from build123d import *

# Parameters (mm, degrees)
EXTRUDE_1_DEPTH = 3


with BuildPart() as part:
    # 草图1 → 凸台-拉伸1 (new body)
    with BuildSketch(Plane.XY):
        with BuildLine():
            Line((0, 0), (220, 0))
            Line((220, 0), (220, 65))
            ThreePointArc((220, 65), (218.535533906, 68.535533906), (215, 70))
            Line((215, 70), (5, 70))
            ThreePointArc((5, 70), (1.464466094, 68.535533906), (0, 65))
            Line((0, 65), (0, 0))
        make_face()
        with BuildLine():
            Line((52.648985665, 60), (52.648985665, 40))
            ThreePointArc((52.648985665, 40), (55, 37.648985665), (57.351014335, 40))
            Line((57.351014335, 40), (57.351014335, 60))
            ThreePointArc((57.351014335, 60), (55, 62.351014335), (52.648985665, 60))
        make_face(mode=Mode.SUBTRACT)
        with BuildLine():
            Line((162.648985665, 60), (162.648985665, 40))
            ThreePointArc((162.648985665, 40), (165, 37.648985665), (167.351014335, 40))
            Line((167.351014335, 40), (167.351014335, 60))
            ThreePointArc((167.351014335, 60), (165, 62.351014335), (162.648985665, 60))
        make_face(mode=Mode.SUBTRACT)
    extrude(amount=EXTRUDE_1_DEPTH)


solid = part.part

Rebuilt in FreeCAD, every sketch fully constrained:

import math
import FreeCAD as App
import Part
import Sketcher

doc = App.newDocument("Part")
body = doc.addObject("PartDesign::Body", "Body")

# Sketch on XY plane
sketch1 = doc.addObject("Sketcher::SketchObject", "Sketch")
body.addObject(sketch1)
sketch1.AttachmentSupport = (doc.XY_Plane, [""])
sketch1.MapMode = "FlatFace"
sketch1.addGeometry(Part.LineSegment(App.Vector(0, 0, 0), App.Vector(220, 0, 0)), False)
sketch1.addGeometry(Part.LineSegment(App.Vector(220, 0, 0), App.Vector(220, 65, 0)), False)
sketch1.addGeometry(Part.ArcOfCircle(Part.Circle(App.Vector(215, 65, 0), App.Vector(0, 0, 1), 5), math.radians(0), math.radians(90)), False)
sketch1.addGeometry(Part.LineSegment(App.Vector(215, 70, 0), App.Vector(5, 70, 0)), False)
sketch1.addGeometry(Part.ArcOfCircle(Part.Circle(App.Vector(5, 65, 0), App.Vector(0, 0, 1), 5), math.radians(90), math.radians(180)), False)
sketch1.addGeometry(Part.LineSegment(App.Vector(0, 65, 0), App.Vector(0, 0, 0)), False)
sketch1.addGeometry(Part.LineSegment(App.Vector(52.6, 40, 0), App.Vector(52.6, 60, 0)), False)
sketch1.addGeometry(Part.ArcOfCircle(Part.Circle(App.Vector(55, 60, 0), App.Vector(0, 0, 1), 2.4), math.radians(0), math.radians(180)), False)
sketch1.addGeometry(Part.LineSegment(App.Vector(57.4, 60, 0), App.Vector(57.4, 40, 0)), False)
sketch1.addGeometry(Part.ArcOfCircle(Part.Circle(App.Vector(55, 40, 0), App.Vector(0, 0, 1), 2.4), math.radians(180), math.radians(360)), False)
sketch1.addGeometry(Part.LineSegment(App.Vector(162.6, 40, 0), App.Vector(162.6, 60, 0)), False)
sketch1.addGeometry(Part.ArcOfCircle(Part.Circle(App.Vector(165, 60, 0), App.Vector(0, 0, 1), 2.4), math.radians(0), math.radians(180)), False)
sketch1.addGeometry(Part.LineSegment(App.Vector(167.4, 60, 0), App.Vector(167.4, 40, 0)), False)
sketch1.addGeometry(Part.ArcOfCircle(Part.Circle(App.Vector(165, 40, 0), App.Vector(0, 0, 1), 2.4), math.radians(180), math.radians(360)), False)
sketch1.addConstraint(Sketcher.Constraint("Coincident", 0, 2, 1, 1))
sketch1.addConstraint(Sketcher.Constraint("Tangent", 1, 2, 2, 1))
sketch1.addConstraint(Sketcher.Constraint("Tangent", 2, 2, 3, 1))
sketch1.addConstraint(Sketcher.Constraint("Tangent", 3, 2, 4, 1))
sketch1.addConstraint(Sketcher.Constraint("Tangent", 4, 2, 5, 1))
sketch1.addConstraint(Sketcher.Constraint("Coincident", 5, 2, 0, 1))
sketch1.addConstraint(Sketcher.Constraint("Tangent", 6, 2, 7, 2))
sketch1.addConstraint(Sketcher.Constraint("Tangent", 7, 1, 8, 1))
sketch1.addConstraint(Sketcher.Constraint("Tangent", 8, 2, 9, 2))
sketch1.addConstraint(Sketcher.Constraint("Tangent", 9, 1, 6, 1))
sketch1.addConstraint(Sketcher.Constraint("Tangent", 10, 2, 11, 2))
sketch1.addConstraint(Sketcher.Constraint("Tangent", 11, 1, 12, 1))
sketch1.addConstraint(Sketcher.Constraint("Tangent", 12, 2, 13, 2))
sketch1.addConstraint(Sketcher.Constraint("Tangent", 13, 1, 10, 1))
sketch1.addConstraint(Sketcher.Constraint("Horizontal", 0))
sketch1.addConstraint(Sketcher.Constraint("Vertical", 1))
sketch1.addConstraint(Sketcher.Constraint("Horizontal", 3))
sketch1.addConstraint(Sketcher.Constraint("Vertical", 5))
sketch1.addConstraint(Sketcher.Constraint("Vertical", 6))
sketch1.addConstraint(Sketcher.Constraint("Vertical", 8))
sketch1.addConstraint(Sketcher.Constraint("Vertical", 10))
sketch1.addConstraint(Sketcher.Constraint("Vertical", 12))
sketch1.addConstraint(Sketcher.Constraint("Coincident", 5, 2, -1, 1))
sketch1.addConstraint(Sketcher.Constraint("Equal", 2, 4))
sketch1.addConstraint(Sketcher.Constraint("Equal", 9, 11))
sketch1.addConstraint(Sketcher.Constraint("Horizontal", 7, 3, 11, 3))
sketch1.addConstraint(Sketcher.Constraint("Horizontal", 9, 3, 13, 3))
sketch1.addConstraint(Sketcher.Constraint("Radius", 2, 5.0))
sketch1.addConstraint(Sketcher.Constraint("DistanceX", 0, 1, 0, 2, 220.0))
sketch1.addConstraint(Sketcher.Constraint("DistanceY", 1, 1, 1, 2, 65.0))
sketch1.addConstraint(Sketcher.Constraint("DistanceY", 6, 1, 6, 2, 20.0))
sketch1.addConstraint(Sketcher.Constraint("DistanceX", -1, 1, 7, 3, 55.0))
sketch1.addConstraint(Sketcher.Constraint("DistanceY", -1, 1, 7, 3, 60.0))
sketch1.addConstraint(Sketcher.Constraint("DistanceX", -1, 1, 11, 3, 165.0))
sketch1.addConstraint(Sketcher.Constraint("Radius", 7, 2.351014))
pad1 = doc.addObject("PartDesign::Pad", "Pad")
body.addObject(pad1)
pad1.Profile = sketch1
pad1.Length = 3

doc.recompute()
